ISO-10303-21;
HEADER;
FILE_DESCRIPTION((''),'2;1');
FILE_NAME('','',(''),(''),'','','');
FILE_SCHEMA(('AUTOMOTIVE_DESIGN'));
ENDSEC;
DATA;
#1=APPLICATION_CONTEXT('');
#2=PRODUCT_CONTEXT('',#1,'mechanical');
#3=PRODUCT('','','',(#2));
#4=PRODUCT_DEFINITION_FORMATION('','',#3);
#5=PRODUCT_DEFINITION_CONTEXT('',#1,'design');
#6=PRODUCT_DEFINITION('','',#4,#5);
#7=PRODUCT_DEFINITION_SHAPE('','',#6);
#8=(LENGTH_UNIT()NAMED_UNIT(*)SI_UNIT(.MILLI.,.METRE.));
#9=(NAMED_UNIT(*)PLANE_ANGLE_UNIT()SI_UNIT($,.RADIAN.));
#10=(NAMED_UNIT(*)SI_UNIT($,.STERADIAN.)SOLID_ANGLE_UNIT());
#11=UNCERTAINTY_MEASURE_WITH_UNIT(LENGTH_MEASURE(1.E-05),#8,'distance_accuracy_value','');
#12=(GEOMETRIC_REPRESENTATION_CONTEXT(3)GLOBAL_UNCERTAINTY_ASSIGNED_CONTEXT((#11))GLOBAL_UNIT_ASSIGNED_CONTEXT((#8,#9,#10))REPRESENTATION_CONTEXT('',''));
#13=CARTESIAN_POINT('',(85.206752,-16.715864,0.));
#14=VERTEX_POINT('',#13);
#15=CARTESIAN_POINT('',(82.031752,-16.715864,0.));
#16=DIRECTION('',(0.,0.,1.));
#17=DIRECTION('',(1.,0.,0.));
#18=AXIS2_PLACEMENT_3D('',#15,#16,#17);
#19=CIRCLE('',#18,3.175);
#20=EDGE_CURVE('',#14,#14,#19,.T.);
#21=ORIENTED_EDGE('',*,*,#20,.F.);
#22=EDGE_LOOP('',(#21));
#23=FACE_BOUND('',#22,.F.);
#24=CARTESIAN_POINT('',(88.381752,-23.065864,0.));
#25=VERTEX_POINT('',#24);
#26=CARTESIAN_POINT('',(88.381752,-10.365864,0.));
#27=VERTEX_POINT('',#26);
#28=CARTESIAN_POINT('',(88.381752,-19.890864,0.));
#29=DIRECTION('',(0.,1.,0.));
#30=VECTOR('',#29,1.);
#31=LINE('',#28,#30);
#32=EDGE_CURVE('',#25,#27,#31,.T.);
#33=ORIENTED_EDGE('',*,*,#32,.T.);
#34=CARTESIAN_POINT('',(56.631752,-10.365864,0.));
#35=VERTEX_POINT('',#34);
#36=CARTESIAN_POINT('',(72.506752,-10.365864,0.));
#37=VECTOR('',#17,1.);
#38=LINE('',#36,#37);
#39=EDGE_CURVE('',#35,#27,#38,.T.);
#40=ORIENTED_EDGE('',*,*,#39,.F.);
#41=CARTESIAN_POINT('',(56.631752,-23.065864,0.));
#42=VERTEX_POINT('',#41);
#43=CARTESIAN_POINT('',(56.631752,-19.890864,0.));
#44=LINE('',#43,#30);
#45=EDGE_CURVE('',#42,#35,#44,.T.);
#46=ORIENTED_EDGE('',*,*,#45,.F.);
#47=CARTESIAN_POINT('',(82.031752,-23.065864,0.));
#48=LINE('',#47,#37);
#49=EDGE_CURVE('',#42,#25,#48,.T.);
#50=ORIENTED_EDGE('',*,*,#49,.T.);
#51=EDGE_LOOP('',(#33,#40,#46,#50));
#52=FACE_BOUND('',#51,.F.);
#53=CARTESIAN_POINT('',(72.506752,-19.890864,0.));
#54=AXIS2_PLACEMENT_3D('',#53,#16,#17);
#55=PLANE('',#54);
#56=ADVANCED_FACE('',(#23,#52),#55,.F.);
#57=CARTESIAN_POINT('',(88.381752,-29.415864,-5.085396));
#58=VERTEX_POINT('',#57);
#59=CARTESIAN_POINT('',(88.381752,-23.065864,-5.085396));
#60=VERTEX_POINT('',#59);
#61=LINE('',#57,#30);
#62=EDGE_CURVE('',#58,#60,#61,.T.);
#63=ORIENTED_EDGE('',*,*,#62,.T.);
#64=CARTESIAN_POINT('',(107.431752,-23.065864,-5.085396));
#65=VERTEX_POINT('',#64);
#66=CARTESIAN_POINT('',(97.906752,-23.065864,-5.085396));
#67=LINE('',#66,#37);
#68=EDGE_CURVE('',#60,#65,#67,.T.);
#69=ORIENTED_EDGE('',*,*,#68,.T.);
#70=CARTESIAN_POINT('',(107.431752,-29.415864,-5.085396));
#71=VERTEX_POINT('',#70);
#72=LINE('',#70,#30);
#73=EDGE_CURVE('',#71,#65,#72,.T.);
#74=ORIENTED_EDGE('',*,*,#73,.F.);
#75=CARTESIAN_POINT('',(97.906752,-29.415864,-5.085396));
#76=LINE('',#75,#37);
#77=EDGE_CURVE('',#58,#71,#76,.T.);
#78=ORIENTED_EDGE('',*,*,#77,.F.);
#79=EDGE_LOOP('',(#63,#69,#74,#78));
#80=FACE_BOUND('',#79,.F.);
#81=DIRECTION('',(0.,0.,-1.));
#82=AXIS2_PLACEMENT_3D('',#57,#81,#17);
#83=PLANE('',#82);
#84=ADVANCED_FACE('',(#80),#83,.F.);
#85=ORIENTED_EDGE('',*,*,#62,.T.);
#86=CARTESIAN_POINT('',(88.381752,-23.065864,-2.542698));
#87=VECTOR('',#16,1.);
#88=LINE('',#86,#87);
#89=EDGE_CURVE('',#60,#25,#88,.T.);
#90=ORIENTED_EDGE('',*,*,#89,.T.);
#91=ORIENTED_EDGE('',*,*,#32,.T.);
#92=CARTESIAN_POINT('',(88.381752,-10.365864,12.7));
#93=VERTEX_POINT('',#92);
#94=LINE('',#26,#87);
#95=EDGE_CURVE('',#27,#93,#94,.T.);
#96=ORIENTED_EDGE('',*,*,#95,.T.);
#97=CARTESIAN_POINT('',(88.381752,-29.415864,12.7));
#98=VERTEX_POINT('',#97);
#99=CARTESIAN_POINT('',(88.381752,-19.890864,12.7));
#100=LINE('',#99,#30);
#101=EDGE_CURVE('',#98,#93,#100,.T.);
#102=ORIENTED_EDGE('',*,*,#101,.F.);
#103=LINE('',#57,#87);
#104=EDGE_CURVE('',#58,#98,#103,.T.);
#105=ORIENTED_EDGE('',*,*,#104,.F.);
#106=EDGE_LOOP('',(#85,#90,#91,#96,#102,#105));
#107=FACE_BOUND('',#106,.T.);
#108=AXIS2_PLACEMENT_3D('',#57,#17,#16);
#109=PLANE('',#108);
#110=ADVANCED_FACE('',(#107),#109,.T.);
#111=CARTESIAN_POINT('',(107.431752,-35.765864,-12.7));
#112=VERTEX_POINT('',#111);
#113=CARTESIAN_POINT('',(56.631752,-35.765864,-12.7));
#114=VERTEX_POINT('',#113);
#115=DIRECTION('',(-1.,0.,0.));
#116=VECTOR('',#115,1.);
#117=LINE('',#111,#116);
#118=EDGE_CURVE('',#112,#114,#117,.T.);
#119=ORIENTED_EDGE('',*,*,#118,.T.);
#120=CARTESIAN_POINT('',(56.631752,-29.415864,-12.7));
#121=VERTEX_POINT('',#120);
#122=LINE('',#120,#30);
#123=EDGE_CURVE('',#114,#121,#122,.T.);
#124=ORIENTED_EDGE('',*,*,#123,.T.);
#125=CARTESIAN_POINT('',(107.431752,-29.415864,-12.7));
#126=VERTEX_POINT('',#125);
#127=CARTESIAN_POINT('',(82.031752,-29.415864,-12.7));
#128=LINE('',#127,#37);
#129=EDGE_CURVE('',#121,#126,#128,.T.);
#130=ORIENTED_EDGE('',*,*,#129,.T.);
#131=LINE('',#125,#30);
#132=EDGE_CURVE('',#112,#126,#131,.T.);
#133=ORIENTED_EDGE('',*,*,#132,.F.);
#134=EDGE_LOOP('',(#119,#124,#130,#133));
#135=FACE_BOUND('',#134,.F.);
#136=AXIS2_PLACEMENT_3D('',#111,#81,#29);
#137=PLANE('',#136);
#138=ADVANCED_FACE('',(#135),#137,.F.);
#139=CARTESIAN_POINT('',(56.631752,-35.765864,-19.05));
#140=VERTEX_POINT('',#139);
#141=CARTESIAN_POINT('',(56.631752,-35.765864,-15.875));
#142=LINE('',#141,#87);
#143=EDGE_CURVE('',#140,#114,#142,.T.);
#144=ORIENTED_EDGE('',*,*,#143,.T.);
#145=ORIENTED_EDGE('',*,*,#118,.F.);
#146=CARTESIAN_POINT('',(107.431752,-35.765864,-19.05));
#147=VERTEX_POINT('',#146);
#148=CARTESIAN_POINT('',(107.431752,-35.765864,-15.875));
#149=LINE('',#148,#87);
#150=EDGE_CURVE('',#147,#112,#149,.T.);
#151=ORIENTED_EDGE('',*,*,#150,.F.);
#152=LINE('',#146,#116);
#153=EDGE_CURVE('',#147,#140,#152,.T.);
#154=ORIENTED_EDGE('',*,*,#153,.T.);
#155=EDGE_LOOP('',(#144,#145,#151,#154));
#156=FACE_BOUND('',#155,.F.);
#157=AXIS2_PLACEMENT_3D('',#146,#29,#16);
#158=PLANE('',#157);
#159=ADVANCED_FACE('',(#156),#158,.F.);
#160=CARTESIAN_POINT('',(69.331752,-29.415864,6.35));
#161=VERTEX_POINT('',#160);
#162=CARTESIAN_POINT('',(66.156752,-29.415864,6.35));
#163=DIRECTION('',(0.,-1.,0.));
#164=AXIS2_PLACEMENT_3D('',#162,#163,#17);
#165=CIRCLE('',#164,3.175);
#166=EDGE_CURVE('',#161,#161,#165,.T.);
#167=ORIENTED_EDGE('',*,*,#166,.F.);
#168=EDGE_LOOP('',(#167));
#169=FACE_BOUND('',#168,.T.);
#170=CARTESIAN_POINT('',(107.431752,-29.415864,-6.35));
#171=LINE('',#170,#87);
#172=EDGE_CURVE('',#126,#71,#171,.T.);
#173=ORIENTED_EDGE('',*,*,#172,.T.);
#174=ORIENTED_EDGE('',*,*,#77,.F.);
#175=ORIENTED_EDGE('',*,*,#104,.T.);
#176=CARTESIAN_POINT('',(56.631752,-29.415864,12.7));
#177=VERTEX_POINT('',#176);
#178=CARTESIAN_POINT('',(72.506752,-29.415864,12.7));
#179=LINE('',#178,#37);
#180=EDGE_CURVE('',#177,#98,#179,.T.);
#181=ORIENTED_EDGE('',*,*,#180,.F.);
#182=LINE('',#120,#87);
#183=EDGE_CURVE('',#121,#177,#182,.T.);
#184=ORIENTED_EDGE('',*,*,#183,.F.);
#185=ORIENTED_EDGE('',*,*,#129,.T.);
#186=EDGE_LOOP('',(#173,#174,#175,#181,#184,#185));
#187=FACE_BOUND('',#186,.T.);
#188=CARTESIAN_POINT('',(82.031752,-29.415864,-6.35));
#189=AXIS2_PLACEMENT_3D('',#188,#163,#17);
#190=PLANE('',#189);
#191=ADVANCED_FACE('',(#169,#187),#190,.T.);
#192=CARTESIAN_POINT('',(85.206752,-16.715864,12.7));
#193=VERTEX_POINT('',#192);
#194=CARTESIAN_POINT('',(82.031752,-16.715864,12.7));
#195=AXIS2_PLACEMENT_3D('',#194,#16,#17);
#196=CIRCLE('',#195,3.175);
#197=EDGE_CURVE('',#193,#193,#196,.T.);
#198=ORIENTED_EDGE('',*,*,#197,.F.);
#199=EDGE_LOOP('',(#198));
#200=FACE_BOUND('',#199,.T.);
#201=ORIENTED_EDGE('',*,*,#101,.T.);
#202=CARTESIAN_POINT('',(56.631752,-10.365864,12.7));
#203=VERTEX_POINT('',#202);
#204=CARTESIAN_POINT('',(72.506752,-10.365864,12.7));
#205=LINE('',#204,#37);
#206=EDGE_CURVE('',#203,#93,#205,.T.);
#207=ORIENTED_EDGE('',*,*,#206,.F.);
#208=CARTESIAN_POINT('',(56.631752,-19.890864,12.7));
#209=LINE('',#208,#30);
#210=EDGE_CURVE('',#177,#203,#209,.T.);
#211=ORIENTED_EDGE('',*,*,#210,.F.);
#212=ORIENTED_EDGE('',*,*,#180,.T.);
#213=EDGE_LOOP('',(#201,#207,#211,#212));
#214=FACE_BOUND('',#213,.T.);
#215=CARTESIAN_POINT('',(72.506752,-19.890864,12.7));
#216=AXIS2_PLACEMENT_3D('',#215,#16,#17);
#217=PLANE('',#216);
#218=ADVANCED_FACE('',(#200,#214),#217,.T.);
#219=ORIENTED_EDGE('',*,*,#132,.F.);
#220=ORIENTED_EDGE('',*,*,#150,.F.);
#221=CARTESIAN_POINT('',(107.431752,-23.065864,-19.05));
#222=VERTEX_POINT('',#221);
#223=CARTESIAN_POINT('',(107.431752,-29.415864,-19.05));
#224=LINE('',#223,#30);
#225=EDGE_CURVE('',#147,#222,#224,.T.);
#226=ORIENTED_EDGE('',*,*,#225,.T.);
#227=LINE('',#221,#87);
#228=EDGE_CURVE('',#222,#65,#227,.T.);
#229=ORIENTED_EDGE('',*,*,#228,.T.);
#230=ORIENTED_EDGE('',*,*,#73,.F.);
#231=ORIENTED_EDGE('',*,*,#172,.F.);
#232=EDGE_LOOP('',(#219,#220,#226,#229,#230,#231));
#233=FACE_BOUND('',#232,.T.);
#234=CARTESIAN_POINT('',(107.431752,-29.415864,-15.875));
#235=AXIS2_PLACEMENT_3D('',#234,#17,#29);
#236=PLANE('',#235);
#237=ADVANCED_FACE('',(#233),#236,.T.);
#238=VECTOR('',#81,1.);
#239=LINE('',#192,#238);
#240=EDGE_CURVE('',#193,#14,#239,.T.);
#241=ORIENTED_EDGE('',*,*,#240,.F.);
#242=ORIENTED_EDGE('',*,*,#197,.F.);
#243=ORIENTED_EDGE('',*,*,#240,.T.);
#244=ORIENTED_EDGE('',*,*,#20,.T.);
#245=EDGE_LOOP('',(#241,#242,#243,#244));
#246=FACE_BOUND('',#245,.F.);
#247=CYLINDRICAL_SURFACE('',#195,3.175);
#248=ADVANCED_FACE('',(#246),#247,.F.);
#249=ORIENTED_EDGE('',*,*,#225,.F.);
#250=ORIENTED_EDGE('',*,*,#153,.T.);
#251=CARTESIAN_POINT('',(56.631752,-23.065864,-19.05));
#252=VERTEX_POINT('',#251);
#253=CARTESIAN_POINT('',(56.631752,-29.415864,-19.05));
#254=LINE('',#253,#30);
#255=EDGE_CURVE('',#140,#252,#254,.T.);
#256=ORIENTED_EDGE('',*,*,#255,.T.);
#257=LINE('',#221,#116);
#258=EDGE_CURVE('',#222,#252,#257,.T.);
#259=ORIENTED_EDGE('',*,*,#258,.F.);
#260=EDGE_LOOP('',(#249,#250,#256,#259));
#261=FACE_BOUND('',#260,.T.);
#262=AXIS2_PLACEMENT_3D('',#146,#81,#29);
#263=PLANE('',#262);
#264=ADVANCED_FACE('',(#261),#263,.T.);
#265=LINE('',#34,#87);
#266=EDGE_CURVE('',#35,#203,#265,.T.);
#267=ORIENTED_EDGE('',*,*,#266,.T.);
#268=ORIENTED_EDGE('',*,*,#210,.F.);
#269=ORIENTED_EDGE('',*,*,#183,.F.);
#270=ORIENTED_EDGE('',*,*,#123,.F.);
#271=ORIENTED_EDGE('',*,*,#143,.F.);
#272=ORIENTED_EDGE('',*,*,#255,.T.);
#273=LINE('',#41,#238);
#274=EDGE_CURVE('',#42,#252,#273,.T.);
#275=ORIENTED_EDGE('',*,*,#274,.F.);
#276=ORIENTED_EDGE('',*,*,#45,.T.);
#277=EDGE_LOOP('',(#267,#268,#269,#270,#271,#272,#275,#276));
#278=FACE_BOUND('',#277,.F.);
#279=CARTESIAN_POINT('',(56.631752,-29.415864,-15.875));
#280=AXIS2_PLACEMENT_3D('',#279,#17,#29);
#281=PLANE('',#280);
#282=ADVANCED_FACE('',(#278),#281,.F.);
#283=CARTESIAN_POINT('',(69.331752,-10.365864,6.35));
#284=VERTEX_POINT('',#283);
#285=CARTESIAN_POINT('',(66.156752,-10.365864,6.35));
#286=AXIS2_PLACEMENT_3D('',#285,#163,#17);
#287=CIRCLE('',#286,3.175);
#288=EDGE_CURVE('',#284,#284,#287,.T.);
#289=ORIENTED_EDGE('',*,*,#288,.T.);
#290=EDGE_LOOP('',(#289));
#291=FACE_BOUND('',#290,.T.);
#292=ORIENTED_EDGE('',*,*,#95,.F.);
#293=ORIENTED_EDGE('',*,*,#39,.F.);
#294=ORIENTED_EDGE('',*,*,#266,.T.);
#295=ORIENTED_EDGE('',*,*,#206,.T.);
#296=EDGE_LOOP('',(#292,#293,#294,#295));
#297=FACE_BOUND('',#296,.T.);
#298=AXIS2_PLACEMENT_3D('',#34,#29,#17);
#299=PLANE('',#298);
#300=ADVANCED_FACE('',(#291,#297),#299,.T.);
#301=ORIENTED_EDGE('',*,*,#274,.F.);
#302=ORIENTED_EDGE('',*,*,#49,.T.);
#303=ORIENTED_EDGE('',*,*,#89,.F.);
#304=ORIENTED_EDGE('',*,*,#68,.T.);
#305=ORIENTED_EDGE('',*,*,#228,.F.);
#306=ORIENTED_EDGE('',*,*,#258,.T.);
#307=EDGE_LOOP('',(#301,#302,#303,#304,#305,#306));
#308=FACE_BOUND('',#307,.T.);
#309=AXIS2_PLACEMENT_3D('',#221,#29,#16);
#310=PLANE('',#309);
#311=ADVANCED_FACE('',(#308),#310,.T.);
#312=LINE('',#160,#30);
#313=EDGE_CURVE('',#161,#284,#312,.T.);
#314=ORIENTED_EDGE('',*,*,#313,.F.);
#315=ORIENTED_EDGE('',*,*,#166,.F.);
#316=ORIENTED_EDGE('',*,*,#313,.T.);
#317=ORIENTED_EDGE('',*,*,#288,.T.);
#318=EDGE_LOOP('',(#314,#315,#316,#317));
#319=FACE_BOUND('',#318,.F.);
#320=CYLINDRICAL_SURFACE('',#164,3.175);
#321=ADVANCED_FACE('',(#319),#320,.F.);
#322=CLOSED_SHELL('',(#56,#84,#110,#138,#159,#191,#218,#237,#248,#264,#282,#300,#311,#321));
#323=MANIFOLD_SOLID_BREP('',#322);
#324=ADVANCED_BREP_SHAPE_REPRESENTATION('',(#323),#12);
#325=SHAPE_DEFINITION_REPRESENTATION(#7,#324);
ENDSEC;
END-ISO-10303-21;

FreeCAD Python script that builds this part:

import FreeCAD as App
import Part
import Sketcher
from FreeCAD import Vector
Q = App.Units.Quantity

doc = App.newDocument("Part")
body = doc.addObject("PartDesign::Body", "Body")

# Sketch on XY plane
sketch1 = doc.addObject("Sketcher::SketchObject", "Sketch")
body.addObject(sketch1)
sketch1.AttachmentSupport = (doc.XY_Plane, [""])
sketch1.MapMode = "FlatFace"
sketch1.addGeometry([
    Part.LineSegment(Vector(57, -10, 0), Vector(57, -29, 0)),
    Part.LineSegment(Vector(57, -29, 0), Vector(88, -29, 0)),
    Part.LineSegment(Vector(88, -29, 0), Vector(88, -10, 0)),
    Part.LineSegment(Vector(88, -10, 0), Vector(57, -10, 0)),
], False)
sketch1.addConstraint([
    Sketcher.Constraint("Coincident", 0, 2, 1, 1),
    Sketcher.Constraint("Coincident", 1, 2, 2, 1),
    Sketcher.Constraint("Coincident", 2, 2, 3, 1),
    Sketcher.Constraint("Coincident", 3, 2, 0, 1),
    Sketcher.Constraint("Vertical", 0),
    Sketcher.Constraint("Horizontal", 1),
    Sketcher.Constraint("Vertical", 2),
    Sketcher.Constraint("Horizontal", 3),
    Sketcher.Constraint("DistanceX", 1, 1, 1, 2, Q("1.25 in")),
    Sketcher.Constraint("DistanceY", 0, 2, 0, 1, Q("0.75 in")),
    Sketcher.Constraint("DistanceX", -1, 1, 0, 2, Q("56.631752 mm")),
    Sketcher.Constraint("DistanceY", 0, 2, -1, 1, Q("29.415864 mm")),
])
pad1 = doc.addObject("PartDesign::Pad", "Pad")
body.addObject(pad1)
pad1.Profile = sketch1
pad1.Length = Q("0.5 in")

# Sketch on XZ plane
sketch2 = doc.addObject("Sketcher::SketchObject", "Sketch001")
body.addObject(sketch2)
sketch2.AttachmentSupport = (doc.XZ_Plane, [""])
sketch2.MapMode = "FlatFace"
sketch2.AttachmentOffset = App.Placement(Vector(0, 0, 29.415864), App.Rotation())
sketch2.addGeometry([
    Part.LineSegment(Vector(57, 0, 0), Vector(57, -13, 0)),
    Part.LineSegment(Vector(57, -13, 0), Vector(107, -13, 0)),
    Part.LineSegment(Vector(107, -13, 0), Vector(107, 0, 0)),
    Part.LineSegment(Vector(107, 0, 0), Vector(57, 0, 0)),
], False)
sketch2.addConstraint([
    Sketcher.Constraint("Coincident", 0, 2, 1, 1),
    Sketcher.Constraint("Coincident", 1, 2, 2, 1),
    Sketcher.Constraint("Coincident", 2, 2, 3, 1),
    Sketcher.Constraint("Coincident", 3, 2, 0, 1),
    Sketcher.Constraint("Vertical", 0),
    Sketcher.Constraint("Horizontal", 1),
    Sketcher.Constraint("Vertical", 2),
    Sketcher.Constraint("Horizontal", 3),
    Sketcher.Constraint("PointOnObject", 2, 2, -1),
    Sketcher.Constraint("DistanceX", 1, 1, 1, 2, Q("2 in")),
    Sketcher.Constraint("DistanceY", 0, 2, 0, 1, Q("0.5 in")),
    Sketcher.Constraint("DistanceX", -1, 1, 0, 2, Q("56.631752 mm")),
])
pad2 = doc.addObject("PartDesign::Pad", "Pad001")
body.addObject(pad2)
pad2.Profile = sketch2
pad2.Length = Q("0.25 in")
pad2.Reversed = True

# Sketch on XZ plane
sketch3 = doc.addObject("Sketcher::SketchObject", "Sketch002")
body.addObject(sketch3)
sketch3.AttachmentSupport = (doc.XZ_Plane, [""])
sketch3.MapMode = "FlatFace"
sketch3.AttachmentOffset = App.Placement(Vector(0, 0, 29.415864), App.Rotation())
sketch3.addGeometry([
    Part.LineSegment(Vector(88, 0, 0), Vector(88, -5, 0)),
    Part.LineSegment(Vector(88, -5, 0), Vector(107, -5, 0)),
    Part.LineSegment(Vector(107, -5, 0), Vector(107, 0, 0)),
    Part.LineSegment(Vector(107, 0, 0), Vector(88, 0, 0)),
], False)
sketch3.addConstraint([
    Sketcher.Constraint("Coincident", 0, 2, 1, 1),
    Sketcher.Constraint("Coincident", 1, 2, 2, 1),
    Sketcher.Constraint("Coincident", 2, 2, 3, 1),
    Sketcher.Constraint("Coincident", 3, 2, 0, 1),
    Sketcher.Constraint("Vertical", 0),
    Sketcher.Constraint("Horizontal", 1),
    Sketcher.Constraint("Vertical", 2),
    Sketcher.Constraint("Horizontal", 3),
    Sketcher.Constraint("PointOnObject", 2, 2, -1),
    Sketcher.Constraint("DistanceX", 1, 1, 1, 2, Q("0.75 in")),
    Sketcher.Constraint("DistanceY", 0, 2, 0, 1, Q("5.085397 mm")),
    Sketcher.Constraint("DistanceX", -1, 1, 0, 2, Q("88.381752 mm")),
])
pocket1 = doc.addObject("PartDesign::Pocket", "Pocket")
body.addObject(pocket1)
pocket1.Profile = sketch3
pocket1.Length = Q("0.25 in")

# Sketch on YZ plane
sketch4 = doc.addObject("Sketcher::SketchObject", "Sketch003")
body.addObject(sketch4)
sketch4.AttachmentSupport = (doc.YZ_Plane, [""])
sketch4.MapMode = "FlatFace"
sketch4.AttachmentOffset = App.Placement(Vector(0, 0, 107.431752), App.Rotation())
sketch4.addGeometry([
    Part.LineSegment(Vector(-36, -13, 0), Vector(-36, -19, 0)),
    Part.LineSegment(Vector(-36, -19, 0), Vector(-23, -19, 0)),
    Part.LineSegment(Vector(-23, -19, 0), Vector(-23, -13, 0)),
    Part.LineSegment(Vector(-23, -13, 0), Vector(-36, -13, 0)),
], False)
sketch4.addConstraint([
    Sketcher.Constraint("Coincident", 0, 2, 1, 1),
    Sketcher.Constraint("Coincident", 1, 2, 2, 1),
    Sketcher.Constraint("Coincident", 2, 2, 3, 1),
    Sketcher.Constraint("Coincident", 3, 2, 0, 1),
    Sketcher.Constraint("Vertical", 0),
    Sketcher.Constraint("Horizontal", 1),
    Sketcher.Constraint("Vertical", 2),
    Sketcher.Constraint("Horizontal", 3),
    Sketcher.Constraint("DistanceX", 1, 1, 1, 2, Q("0.5 in")),
    Sketcher.Constraint("DistanceY", 0, 2, 0, 1, Q("0.25 in")),
    Sketcher.Constraint("DistanceY", 2, 2, -1, 1, Q("0.5 in")),
    Sketcher.Constraint("DistanceX", 0, 2, -1, 1, Q("35.765864 mm")),
])
pad3 = doc.addObject("PartDesign::Pad", "Pad002")
body.addObject(pad3)
pad3.Profile = sketch4
pad3.Length = Q("2 in")
pad3.Reversed = True

# Sketch on XY plane
sketch5 = doc.addObject("Sketcher::SketchObject", "Sketch004")
body.addObject(sketch5)
sketch5.AttachmentSupport = (doc.XY_Plane, [""])
sketch5.MapMode = "FlatFace"
sketch5.AttachmentOffset = App.Placement(Vector(0, 0, 0.5 * 25.4), App.Rotation())
sketch5.addGeometry(Part.Circle(Vector(82, -16.7, 0), Vector(0, 0, 1), 3.2), False)
sketch5.addConstraint([
    Sketcher.Constraint("Diameter", 0, Q("0.25 in")),
    Sketcher.Constraint("DistanceX", -1, 1, 0, 3, Q("82.031752 mm")),
    Sketcher.Constraint("DistanceY", 0, 3, -1, 1, Q("16.715864 mm")),
])
pocket2 = doc.addObject("PartDesign::Pocket", "Pocket001")
body.addObject(pocket2)
pocket2.Profile = sketch5
pocket2.Length = Q("0.5 in")

# Sketch on XZ plane
sketch6 = doc.addObject("Sketcher::SketchObject", "Sketch005")
body.addObject(sketch6)
sketch6.AttachmentSupport = (doc.XZ_Plane, [""])
sketch6.MapMode = "FlatFace"
sketch6.AttachmentOffset = App.Placement(Vector(0, 0, 29.415864), App.Rotation())
sketch6.addGeometry(Part.Circle(Vector(66.2, 6.3, 0), Vector(0, 0, 1), 3.2), False)
sketch6.addConstraint([
    Sketcher.Constraint("Diameter", 0, Q("0.25 in")),
    Sketcher.Constraint("DistanceY", -1, 1, 0, 3, Q("0.25 in")),
    Sketcher.Constraint("DistanceX", -1, 1, 0, 3, Q("66.156752 mm")),
])
pocket3 = doc.addObject("PartDesign::Pocket", "Pocket002")
body.addObject(pocket3)
pocket3.Profile = sketch6
pocket3.Length = Q("0.75 in")

doc.recompute()
